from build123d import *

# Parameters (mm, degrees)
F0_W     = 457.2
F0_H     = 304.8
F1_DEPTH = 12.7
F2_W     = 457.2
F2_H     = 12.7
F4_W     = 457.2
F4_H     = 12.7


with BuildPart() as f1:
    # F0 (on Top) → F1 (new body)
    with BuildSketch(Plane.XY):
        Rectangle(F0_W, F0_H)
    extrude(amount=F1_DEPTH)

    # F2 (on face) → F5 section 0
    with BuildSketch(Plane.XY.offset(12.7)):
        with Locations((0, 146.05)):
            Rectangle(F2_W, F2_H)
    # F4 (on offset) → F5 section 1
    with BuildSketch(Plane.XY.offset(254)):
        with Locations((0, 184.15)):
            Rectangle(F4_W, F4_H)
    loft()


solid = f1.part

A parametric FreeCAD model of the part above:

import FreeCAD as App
import Part
import Sketcher
Q = App.Units.Quantity

doc = App.newDocument("Part")
body = doc.addObject("PartDesign::Body", "Body")

sketch1 = body.newObject("Sketcher::SketchObject", "Sketch")
sketch1.AttachmentSupport = (doc.getObject("XY_Plane"), [""])
sketch1.MapMode = "FlatFace"
sketch1.addGeometry([
    Part.LineSegment(App.Vector(-229, 152, 0), App.Vector(-229, -152, 0)),
    Part.LineSegment(App.Vector(-229, -152, 0), App.Vector(229, -152, 0)),
    Part.LineSegment(App.Vector(229, -152, 0), App.Vector(229, 152, 0)),
    Part.LineSegment(App.Vector(229, 152, 0), App.Vector(-229, 152, 0)),
], False)
sketch1.addConstraint([
    Sketcher.Constraint("Coincident", 0, 2, 1, 1),
    Sketcher.Constraint("Coincident", 1, 2, 2, 1),
    Sketcher.Constraint("Coincident", 2, 2, 3, 1),
    Sketcher.Constraint("Coincident", 3, 2, 0, 1),
    Sketcher.Constraint("Vertical", 0),
    Sketcher.Constraint("Horizontal", 1),
    Sketcher.Constraint("Vertical", 2),
    Sketcher.Constraint("Horizontal", 3),
    Sketcher.Constraint("Symmetric", 0, 2, 2, 2, -1, 1),
    Sketcher.Constraint("DistanceX", 1, 1, 1, 2, Q("18 in")),
    Sketcher.Constraint("DistanceY", 0, 2, 0, 1, Q("12 in")),
])
pad1 = body.newObject("PartDesign::Pad", "Pad")
pad1.Profile = sketch1
pad1.Length = Q("0.5 in")

sketch2 = body.newObject("Sketcher::SketchObject", "Sketch001")
sketch2.AttachmentSupport = (doc.getObject("XY_Plane"), [""])
sketch2.MapMode = "FlatFace"
sketch2.AttachmentOffset = App.Placement(App.Vector(0, 0, 0.5 * 25.4), App.Rotation())
sketch2.addGeometry([
    Part.LineSegment(App.Vector(-229, 152, 0), App.Vector(-229, 140, 0)),
    Part.LineSegment(App.Vector(-229, 140, 0), App.Vector(229, 140, 0)),
    Part.LineSegment(App.Vector(229, 140, 0), App.Vector(229, 152, 0)),
    Part.LineSegment(App.Vector(229, 152, 0), App.Vector(-229, 152, 0)),
], False)
sketch2.addConstraint([
    Sketcher.Constraint("Coincident", 0, 2, 1, 1),
    Sketcher.Constraint("Coincident", 1, 2, 2, 1),
    Sketcher.Constraint("Coincident", 2, 2, 3, 1),
    Sketcher.Constraint("Coincident", 3, 2, 0, 1),
    Sketcher.Constraint("Vertical", 0),
    Sketcher.Constraint("Horizontal", 1),
    Sketcher.Constraint("Vertical", 2),
    Sketcher.Constraint("Horizontal", 3),
    Sketcher.Constraint("DistanceX", 1, 1, 1, 2, Q("18 in")),
    Sketcher.Constraint("DistanceY", 0, 2, 0, 1, Q("0.5 in")),
    Sketcher.Constraint("DistanceX", 0, 2, -1, 1, Q("9 in")),
    Sketcher.Constraint("DistanceY", -1, 1, 2, 2, Q("6 in")),
])

sketch3 = body.newObject("Sketcher::SketchObject", "Sketch002")
sketch3.AttachmentSupport = (doc.getObject("XY_Plane"), [""])
sketch3.MapMode = "FlatFace"
sketch3.AttachmentOffset = App.Placement(App.Vector(0, 0, 10 * 25.4), App.Rotation())
sketch3.addGeometry([
    Part.LineSegment(App.Vector(-229, 190, 0), App.Vector(-229, 178, 0)),
    Part.LineSegment(App.Vector(-229, 178, 0), App.Vector(229, 178, 0)),
    Part.LineSegment(App.Vector(229, 178, 0), App.Vector(229, 190, 0)),
    Part.LineSegment(App.Vector(229, 190, 0), App.Vector(-229, 190, 0)),
], False)
sketch3.addConstraint([
    Sketcher.Constraint("Coincident", 0, 2, 1, 1),
    Sketcher.Constraint("Coincident", 1, 2, 2, 1),
    Sketcher.Constraint("Coincident", 2, 2, 3, 1),
    Sketcher.Constraint("Coincident", 3, 2, 0, 1),
    Sketcher.Constraint("Vertical", 0),
    Sketcher.Constraint("Horizontal", 1),
    Sketcher.Constraint("Vertical", 2),
    Sketcher.Constraint("Horizontal", 3),
    Sketcher.Constraint("DistanceX", 1, 1, 1, 2, Q("18 in")),
    Sketcher.Constraint("DistanceY", 0, 2, 0, 1, Q("0.5 in")),
    Sketcher.Constraint("DistanceX", 0, 2, -1, 1, Q("9 in")),
    Sketcher.Constraint("DistanceY", -1, 1, 0, 2, Q("7 in")),
])

additiveloft = body.newObject("PartDesign::AdditiveLoft", "AdditiveLoft")
additiveloft.Profile = sketch2
additiveloft.Sections = [sketch3]

doc.recompute()
